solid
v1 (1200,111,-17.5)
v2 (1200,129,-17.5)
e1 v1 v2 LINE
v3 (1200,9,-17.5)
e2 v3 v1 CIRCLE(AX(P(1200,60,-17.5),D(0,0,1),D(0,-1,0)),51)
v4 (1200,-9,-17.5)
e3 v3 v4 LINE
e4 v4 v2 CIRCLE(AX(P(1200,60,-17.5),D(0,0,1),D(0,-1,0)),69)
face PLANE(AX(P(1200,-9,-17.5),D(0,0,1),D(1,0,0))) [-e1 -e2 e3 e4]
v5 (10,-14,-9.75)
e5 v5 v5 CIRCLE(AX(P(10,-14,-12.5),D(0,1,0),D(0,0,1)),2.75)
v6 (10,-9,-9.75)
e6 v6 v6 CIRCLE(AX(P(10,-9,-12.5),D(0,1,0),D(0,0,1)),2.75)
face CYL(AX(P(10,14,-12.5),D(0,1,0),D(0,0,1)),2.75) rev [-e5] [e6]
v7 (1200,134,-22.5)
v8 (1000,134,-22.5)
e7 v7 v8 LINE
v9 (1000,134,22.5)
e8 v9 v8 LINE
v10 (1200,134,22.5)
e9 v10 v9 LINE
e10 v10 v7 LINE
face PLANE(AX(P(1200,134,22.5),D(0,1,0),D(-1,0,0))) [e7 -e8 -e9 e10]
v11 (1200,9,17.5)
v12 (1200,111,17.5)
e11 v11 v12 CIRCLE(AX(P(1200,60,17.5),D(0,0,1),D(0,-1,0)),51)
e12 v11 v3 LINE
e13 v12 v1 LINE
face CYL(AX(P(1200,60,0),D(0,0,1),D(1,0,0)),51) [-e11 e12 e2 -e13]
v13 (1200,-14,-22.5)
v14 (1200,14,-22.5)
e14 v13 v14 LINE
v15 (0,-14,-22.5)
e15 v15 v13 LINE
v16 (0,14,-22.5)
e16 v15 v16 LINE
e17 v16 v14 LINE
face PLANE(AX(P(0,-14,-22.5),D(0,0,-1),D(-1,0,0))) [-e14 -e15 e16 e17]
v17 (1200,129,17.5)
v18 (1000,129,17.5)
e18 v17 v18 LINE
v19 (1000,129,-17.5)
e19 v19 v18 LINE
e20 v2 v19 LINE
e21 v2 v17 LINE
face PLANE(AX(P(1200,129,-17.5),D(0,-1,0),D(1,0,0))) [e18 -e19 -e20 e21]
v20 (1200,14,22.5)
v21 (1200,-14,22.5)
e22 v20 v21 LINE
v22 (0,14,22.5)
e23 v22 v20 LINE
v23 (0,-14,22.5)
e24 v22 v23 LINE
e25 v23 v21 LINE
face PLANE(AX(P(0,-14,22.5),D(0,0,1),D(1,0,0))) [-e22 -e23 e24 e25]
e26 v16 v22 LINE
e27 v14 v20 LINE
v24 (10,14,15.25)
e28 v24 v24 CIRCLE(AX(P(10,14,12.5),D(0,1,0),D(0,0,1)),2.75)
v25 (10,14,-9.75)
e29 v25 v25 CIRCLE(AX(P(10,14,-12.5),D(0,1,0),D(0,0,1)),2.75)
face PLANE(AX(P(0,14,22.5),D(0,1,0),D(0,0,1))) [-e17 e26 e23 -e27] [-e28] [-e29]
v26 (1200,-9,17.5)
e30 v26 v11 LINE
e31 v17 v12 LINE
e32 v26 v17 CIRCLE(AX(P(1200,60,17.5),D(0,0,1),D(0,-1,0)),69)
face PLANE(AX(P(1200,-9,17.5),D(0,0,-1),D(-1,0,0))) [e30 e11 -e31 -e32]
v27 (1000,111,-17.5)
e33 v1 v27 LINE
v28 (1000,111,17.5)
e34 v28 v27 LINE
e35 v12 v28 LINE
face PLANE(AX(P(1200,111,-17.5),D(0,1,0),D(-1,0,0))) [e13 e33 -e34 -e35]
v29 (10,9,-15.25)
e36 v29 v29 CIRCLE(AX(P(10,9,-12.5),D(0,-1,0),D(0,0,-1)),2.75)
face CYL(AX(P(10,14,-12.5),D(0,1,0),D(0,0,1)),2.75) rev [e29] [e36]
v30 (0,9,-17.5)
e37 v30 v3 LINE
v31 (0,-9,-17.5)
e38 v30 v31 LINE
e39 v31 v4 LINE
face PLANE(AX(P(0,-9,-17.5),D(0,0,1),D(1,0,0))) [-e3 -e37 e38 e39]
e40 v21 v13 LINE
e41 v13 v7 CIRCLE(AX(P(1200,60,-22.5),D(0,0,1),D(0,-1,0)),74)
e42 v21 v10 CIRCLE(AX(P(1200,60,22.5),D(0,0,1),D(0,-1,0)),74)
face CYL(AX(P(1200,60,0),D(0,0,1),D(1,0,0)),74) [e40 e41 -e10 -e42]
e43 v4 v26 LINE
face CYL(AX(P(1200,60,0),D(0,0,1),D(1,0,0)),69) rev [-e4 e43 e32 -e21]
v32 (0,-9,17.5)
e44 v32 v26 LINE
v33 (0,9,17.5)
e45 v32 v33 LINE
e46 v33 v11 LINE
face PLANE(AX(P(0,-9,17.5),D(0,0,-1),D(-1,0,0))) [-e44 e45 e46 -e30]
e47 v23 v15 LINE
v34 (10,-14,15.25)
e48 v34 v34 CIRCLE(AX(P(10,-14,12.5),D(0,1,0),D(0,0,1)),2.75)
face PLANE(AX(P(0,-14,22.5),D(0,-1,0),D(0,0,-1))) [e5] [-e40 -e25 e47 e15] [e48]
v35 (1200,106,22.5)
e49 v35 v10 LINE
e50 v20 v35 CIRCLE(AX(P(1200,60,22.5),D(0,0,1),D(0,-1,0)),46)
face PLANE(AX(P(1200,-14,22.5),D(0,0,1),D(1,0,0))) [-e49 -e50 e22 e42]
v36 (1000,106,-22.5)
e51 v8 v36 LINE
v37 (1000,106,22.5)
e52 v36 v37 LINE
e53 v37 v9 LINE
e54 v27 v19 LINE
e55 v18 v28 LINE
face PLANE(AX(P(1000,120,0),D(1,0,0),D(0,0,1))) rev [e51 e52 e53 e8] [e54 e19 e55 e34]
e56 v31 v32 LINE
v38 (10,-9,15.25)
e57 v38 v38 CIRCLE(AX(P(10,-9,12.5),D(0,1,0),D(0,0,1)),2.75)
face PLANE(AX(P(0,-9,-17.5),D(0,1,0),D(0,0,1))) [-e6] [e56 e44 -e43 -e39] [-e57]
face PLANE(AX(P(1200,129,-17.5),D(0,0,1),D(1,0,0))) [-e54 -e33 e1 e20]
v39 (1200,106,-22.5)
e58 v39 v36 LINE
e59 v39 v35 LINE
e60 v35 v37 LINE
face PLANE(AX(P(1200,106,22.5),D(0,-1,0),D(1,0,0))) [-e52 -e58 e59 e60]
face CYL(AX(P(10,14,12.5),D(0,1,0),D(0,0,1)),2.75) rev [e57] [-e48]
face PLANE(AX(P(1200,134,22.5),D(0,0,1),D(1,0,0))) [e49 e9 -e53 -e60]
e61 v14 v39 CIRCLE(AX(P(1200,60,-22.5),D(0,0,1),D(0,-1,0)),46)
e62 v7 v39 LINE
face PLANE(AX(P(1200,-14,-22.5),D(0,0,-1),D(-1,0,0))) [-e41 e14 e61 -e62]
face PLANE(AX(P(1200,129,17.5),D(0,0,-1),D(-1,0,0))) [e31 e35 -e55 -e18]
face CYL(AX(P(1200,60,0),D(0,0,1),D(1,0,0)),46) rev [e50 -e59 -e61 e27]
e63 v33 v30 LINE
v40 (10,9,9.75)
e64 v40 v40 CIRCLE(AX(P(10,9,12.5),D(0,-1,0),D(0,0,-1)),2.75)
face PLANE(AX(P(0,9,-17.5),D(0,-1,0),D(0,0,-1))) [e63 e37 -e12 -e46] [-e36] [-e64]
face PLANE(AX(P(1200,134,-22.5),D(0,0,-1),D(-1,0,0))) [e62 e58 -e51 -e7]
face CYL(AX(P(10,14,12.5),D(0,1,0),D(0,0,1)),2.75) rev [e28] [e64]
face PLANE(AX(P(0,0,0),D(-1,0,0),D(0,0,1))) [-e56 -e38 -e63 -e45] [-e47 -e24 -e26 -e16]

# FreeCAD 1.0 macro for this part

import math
import FreeCAD as App
import Part
import Sketcher
from FreeCAD import Vector

doc = App.newDocument("Part")
body = doc.addObject("PartDesign::Body", "Body")

sketch1 = doc.addObject("Sketcher::SketchObject", "Sketch")
body.addObject(sketch1)
sketch1.AttachmentSupport = (doc.YZ_Plane, [""])
sketch1.MapMode = "FlatFace"
sketch1.addGeometry([
    Part.LineSegment(Vector(14, 22, 0), Vector(-14, 22, 0)),
    Part.LineSegment(Vector(-14, 22, 0), Vector(-14, -22, 0)),
    Part.LineSegment(Vector(-14, -22, 0), Vector(14, -22, 0)),
    Part.LineSegment(Vector(14, -22, 0), Vector(14, 22, 0)),
    Part.LineSegment(Vector(-9, -18, 0), Vector(-9, 18, 0)),
    Part.LineSegment(Vector(-9, 18, 0), Vector(9, 18, 0)),
    Part.LineSegment(Vector(9, 18, 0), Vector(9, -18, 0)),
    Part.LineSegment(Vector(9, -18, 0), Vector(-9, -18, 0)),
], False)
sketch1.addConstraint([
    Sketcher.Constraint("Coincident", 0, 2, 1, 1),
    Sketcher.Constraint("Coincident", 1, 2, 2, 1),
    Sketcher.Constraint("Coincident", 2, 2, 3, 1),
    Sketcher.Constraint("Coincident", 3, 2, 0, 1),
    Sketcher.Constraint("Coincident", 4, 2, 5, 1),
    Sketcher.Constraint("Coincident", 5, 2, 6, 1),
    Sketcher.Constraint("Coincident", 6, 2, 7, 1),
    Sketcher.Constraint("Coincident", 7, 2, 4, 1),
    Sketcher.Constraint("Horizontal", 0),
    Sketcher.Constraint("Vertical", 1),
    Sketcher.Constraint("Horizontal", 2),
    Sketcher.Constraint("Vertical", 3),
    Sketcher.Constraint("Vertical", 4),
    Sketcher.Constraint("Horizontal", 5),
    Sketcher.Constraint("Vertical", 6),
    Sketcher.Constraint("Horizontal", 7),
    Sketcher.Constraint("Symmetric", 0, 2, 2, 2, -1, 1),
    Sketcher.Constraint("Symmetric", 4, 2, 6, 2, -1, 1),
    Sketcher.Constraint("DistanceX", 0, 2, 0, 1, 28.0),
    Sketcher.Constraint("DistanceX", 5, 1, 5, 2, 18.0),
    Sketcher.Constraint("DistanceY", 1, 2, 1, 1, 45.0),
    Sketcher.Constraint("DistanceY", 4, 1, 4, 2, 35.0),
])

sketch2 = doc.addObject("Sketcher::SketchObject", "Sketch001")
body.addObject(sketch2)
sketch2.AttachmentSupport = (doc.XY_Plane, [""])
sketch2.MapMode = "FlatFace"
sketch2.addGeometry([
    Part.LineSegment(Vector(0, 0, 0), Vector(1200, 0, 0)),
    Part.ArcOfCircle(Part.Circle(Vector(1200, 60, 0), Vector(0, 0, 1), 60), math.radians(-90), math.radians(90)),
    Part.LineSegment(Vector(1200, 120, 0), Vector(1000, 120, 0)),
], False)
sketch2.addConstraint([
    Sketcher.Constraint("Tangent", 0, 2, 1, 1),
    Sketcher.Constraint("Tangent", 1, 2, 2, 1),
    Sketcher.Constraint("Horizontal", 0),
    Sketcher.Constraint("Horizontal", 2),
    Sketcher.Constraint("Coincident", 0, 1, -1, 1),
    Sketcher.Constraint("Radius", 1, 60.0),
    Sketcher.Constraint("DistanceX", 0, 1, 0, 2, 1200.0),
    Sketcher.Constraint("DistanceX", 2, 2, 2, 1, 200.0),
])
doc.recompute()

additivepipe = doc.addObject("PartDesign::AdditivePipe", "AdditivePipe")
body.addObject(additivepipe)
additivepipe.Profile = sketch1
additivepipe.Spine = (sketch2, ["Edge1", "Edge2", "Edge3"])

sketch3 = doc.addObject("Sketcher::SketchObject", "Sketch002")
body.addObject(sketch3)
sketch3.AttachmentSupport = (doc.XZ_Plane, [""])
sketch3.MapMode = "FlatFace"
sketch3.AttachmentOffset = App.Placement(Vector(0, 0, -14), App.Rotation())
sketch3.addGeometry([
    Part.Circle(Vector(10, -12.5, 0), Vector(0, 0, 1), 2.8),
    Part.Circle(Vector(10, 12.5, 0), Vector(0, 0, 1), 2.8),
], False)
sketch3.addConstraint([
    Sketcher.Constraint("Equal", 0, 1),
    Sketcher.Constraint("Symmetric", 0, 3, 1, 3, -1),
    Sketcher.Constraint("Diameter", 0, 5.5),
    Sketcher.Constraint("DistanceX", -1, 1, 0, 3, 10.0),
    Sketcher.Constraint("DistanceY", 0, 3, 1, 3, 25.0),
])
doc.recompute()
hole = doc.addObject("PartDesign::Hole", "Hole")
body.addObject(hole)
hole.Profile = sketch3
hole.ThreadType = "None"
hole.Diameter = 5.5
hole.DepthType = "ThroughAll"
hole.Reversed = True

doc.recompute()
